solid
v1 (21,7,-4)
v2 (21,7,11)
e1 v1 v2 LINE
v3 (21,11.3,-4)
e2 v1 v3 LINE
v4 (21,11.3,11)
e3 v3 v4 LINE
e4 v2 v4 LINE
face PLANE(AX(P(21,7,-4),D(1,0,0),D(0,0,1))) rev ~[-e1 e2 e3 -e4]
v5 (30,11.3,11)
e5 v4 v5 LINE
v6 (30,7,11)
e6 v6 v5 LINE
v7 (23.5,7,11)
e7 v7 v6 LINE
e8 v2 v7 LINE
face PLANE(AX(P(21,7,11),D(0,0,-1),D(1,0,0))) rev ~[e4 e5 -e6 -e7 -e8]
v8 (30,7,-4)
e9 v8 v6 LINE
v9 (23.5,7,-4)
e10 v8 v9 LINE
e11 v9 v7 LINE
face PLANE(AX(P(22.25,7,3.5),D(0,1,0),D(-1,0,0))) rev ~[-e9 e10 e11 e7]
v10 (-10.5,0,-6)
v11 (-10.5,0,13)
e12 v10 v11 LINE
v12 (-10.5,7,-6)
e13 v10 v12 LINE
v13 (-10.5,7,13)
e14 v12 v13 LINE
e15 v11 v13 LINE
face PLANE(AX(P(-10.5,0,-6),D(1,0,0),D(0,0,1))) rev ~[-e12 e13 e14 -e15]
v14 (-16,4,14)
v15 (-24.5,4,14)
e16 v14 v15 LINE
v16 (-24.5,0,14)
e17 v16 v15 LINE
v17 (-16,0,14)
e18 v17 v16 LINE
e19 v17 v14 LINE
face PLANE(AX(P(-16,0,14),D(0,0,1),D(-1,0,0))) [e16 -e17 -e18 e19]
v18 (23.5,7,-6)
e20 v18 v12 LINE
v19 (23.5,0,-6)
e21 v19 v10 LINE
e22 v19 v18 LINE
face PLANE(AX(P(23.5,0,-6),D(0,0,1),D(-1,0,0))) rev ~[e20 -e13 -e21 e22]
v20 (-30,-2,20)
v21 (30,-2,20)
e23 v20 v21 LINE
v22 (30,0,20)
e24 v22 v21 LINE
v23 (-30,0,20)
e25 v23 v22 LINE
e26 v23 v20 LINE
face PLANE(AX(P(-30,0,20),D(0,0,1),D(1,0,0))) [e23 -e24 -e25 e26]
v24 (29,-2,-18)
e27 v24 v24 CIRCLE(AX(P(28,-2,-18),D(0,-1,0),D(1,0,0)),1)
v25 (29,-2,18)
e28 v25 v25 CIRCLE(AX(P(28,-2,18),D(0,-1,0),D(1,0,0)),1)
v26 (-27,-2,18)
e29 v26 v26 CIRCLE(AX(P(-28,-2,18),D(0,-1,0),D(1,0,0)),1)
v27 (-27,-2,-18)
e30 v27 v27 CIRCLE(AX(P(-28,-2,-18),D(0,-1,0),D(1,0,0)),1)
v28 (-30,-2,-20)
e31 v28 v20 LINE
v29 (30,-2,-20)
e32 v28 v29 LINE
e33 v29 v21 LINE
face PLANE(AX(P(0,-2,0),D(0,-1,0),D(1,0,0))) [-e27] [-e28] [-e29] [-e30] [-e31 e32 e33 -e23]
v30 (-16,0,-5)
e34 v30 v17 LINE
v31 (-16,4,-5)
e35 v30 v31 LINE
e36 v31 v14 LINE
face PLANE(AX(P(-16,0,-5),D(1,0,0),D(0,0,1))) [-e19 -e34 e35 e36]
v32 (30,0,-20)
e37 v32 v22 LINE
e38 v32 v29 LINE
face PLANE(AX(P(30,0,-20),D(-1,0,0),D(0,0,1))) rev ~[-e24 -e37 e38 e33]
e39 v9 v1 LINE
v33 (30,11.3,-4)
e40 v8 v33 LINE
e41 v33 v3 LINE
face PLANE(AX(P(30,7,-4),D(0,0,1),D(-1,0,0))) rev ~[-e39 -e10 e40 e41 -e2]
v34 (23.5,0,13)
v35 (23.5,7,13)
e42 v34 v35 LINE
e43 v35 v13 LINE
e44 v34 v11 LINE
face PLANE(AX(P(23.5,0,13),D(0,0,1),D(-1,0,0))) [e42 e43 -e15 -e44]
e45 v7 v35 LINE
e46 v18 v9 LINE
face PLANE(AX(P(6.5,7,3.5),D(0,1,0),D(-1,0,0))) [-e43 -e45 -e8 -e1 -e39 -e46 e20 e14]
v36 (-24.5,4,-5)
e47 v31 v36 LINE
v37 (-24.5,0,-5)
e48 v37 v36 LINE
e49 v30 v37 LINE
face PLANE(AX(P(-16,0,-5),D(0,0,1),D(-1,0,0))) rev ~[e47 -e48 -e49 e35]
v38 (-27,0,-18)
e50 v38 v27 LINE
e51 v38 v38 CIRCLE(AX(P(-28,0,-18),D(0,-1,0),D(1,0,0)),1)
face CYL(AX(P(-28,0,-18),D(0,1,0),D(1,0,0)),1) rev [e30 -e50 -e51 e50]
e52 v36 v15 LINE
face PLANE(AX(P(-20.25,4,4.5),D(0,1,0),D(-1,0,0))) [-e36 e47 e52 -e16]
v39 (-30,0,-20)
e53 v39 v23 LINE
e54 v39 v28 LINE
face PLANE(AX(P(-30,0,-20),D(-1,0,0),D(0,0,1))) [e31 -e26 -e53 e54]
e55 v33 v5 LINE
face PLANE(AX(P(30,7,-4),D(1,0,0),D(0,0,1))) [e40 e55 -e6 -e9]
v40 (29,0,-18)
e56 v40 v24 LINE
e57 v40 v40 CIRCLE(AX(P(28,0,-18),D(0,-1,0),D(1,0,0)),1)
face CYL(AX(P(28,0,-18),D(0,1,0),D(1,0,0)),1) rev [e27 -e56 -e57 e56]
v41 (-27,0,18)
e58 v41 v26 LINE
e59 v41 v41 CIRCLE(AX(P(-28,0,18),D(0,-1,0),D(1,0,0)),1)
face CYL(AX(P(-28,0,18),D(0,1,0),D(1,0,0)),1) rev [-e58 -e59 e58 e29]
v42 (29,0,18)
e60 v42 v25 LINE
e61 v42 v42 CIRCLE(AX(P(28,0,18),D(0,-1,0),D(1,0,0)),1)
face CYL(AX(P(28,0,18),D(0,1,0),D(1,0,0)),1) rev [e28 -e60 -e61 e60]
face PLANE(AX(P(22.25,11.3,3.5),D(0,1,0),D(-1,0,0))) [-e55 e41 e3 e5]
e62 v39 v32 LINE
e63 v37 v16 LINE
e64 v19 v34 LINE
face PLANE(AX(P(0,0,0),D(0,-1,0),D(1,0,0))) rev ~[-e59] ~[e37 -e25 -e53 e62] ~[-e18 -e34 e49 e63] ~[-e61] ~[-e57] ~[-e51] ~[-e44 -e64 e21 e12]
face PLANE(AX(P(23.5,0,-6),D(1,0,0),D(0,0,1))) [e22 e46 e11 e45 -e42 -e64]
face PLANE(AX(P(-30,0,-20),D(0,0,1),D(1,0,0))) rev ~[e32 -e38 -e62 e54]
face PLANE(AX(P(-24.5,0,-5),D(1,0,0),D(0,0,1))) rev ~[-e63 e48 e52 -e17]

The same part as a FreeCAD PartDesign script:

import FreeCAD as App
import Part
import Sketcher
from FreeCAD import Vector


def add_polygon(sketch, points):
    """Adds a closed chain of lines whose ends are joined by coincident constraints."""
    first, n = sketch.GeometryCount, len(points)
    for a, b in zip(points, points[1:] + points[:1]):
        sketch.addGeometry(Part.LineSegment(App.Vector(*a, 0), App.Vector(*b, 0)), False)
    for i in range(n):
        sketch.addConstraint(Sketcher.Constraint("Coincident", first + i, 2, first + (i + 1) % n, 1))

doc = App.newDocument("Part")
body = doc.addObject("PartDesign::Body", "Body")

sketch1 = body.newObject("Sketcher::SketchObject", "Sketch")
sketch1.AttachmentSupport = (doc.getObject("XZ_Plane"), [""])
sketch1.MapMode = "FlatFace"
add_polygon(sketch1, [(-30, 20), (-30, -20), (30, -20), (30, 20)])
sketch1.addGeometry(Part.Circle(Vector(-28, -18, 0), Vector(0, 0, 1), 1), False)
sketch1.addGeometry(Part.Circle(Vector(28, -18, 0), Vector(0, 0, 1), 1), False)
sketch1.addGeometry(Part.Circle(Vector(-28, 18, 0), Vector(0, 0, 1), 1), False)
sketch1.addGeometry(Part.Circle(Vector(28, 18, 0), Vector(0, 0, 1), 1), False)
sketch1.addConstraint([
    Sketcher.Constraint("Vertical", 0),
    Sketcher.Constraint("Horizontal", 1),
    Sketcher.Constraint("Vertical", 2),
    Sketcher.Constraint("Horizontal", 3),
    Sketcher.Constraint("Equal", 4, 5),
    Sketcher.Constraint("Equal", 5, 6),
    Sketcher.Constraint("Equal", 6, 7),
    Sketcher.Constraint("Symmetric", 5, 3, 6, 3, -1, 1),
    Sketcher.Constraint("Symmetric", 4, 3, 7, 3, -1, 1),
    Sketcher.Constraint("Symmetric", 0, 2, 2, 2, -1, 1),
    Sketcher.Constraint("Symmetric", 4, 3, 5, 3, -2),
    Sketcher.Constraint("Diameter", 4, 2.0),
    Sketcher.Constraint("DistanceX", 1, 1, 1, 2, 60.0),
    Sketcher.Constraint("DistanceY", 0, 2, 0, 1, 40.0),
    Sketcher.Constraint("DistanceX", 4, 3, -1, 1, 28.0),
    Sketcher.Constraint("DistanceY", 4, 3, -1, 1, 18.0),
])
pad1 = body.newObject("PartDesign::Pad", "Pad")
pad1.Profile = sketch1
pad1.Length = 2

sketch2 = body.newObject("Sketcher::SketchObject", "Sketch001")
sketch2.AttachmentSupport = (doc.getObject("XZ_Plane"), [""])
sketch2.MapMode = "FlatFace"
add_polygon(sketch2, [(-16, 14), (-16, -5), (-24, -5), (-24, 14)])
sketch2.addConstraint([
    Sketcher.Constraint("Vertical", 0),
    Sketcher.Constraint("Horizontal", 1),
    Sketcher.Constraint("Vertical", 2),
    Sketcher.Constraint("Horizontal", 3),
    Sketcher.Constraint("DistanceY", 0, 2, 0, 1, 19.0),
    Sketcher.Constraint("DistanceX", 1, 2, 1, 1, 8.5),
    Sketcher.Constraint("DistanceX", 0, 2, -1, 1, 16.0),
    Sketcher.Constraint("DistanceY", 0, 2, -1, 1, 5.0),
])
pad2 = body.newObject("PartDesign::Pad", "Pad001")
pad2.Profile = sketch2
pad2.Length = 4
pad2.Reversed = True

sketch3 = body.newObject("Sketcher::SketchObject", "Sketch002")
sketch3.AttachmentSupport = (doc.getObject("XZ_Plane"), [""])
sketch3.MapMode = "FlatFace"
add_polygon(sketch3, [(24, 13), (24, -6), (-10, -6), (-10, 13)])
sketch3.addConstraint([
    Sketcher.Constraint("Vertical", 0),
    Sketcher.Constraint("Horizontal", 1),
    Sketcher.Constraint("Vertical", 2),
    Sketcher.Constraint("Horizontal", 3),
    Sketcher.Constraint("DistanceX", 1, 2, 1, 1, 34.0),
    Sketcher.Constraint("DistanceY", 0, 2, 0, 1, 19.0),
    Sketcher.Constraint("DistanceY", 0, 2, -1, 1, 6.0),
    Sketcher.Constraint("DistanceX", -1, 1, 0, 2, 23.5),
])
pad3 = body.newObject("PartDesign::Pad", "Pad002")
pad3.Profile = sketch3
pad3.Length = 7
pad3.Reversed = True

sketch4 = body.newObject("Sketcher::SketchObject", "Sketch003")
sketch4.AttachmentSupport = (doc.getObject("XZ_Plane"), [""])
sketch4.MapMode = "FlatFace"
sketch4.AttachmentOffset = App.Placement(Vector(0, 0, -7), App.Rotation())
add_polygon(sketch4, [(21, -4), (21, 11), (30, 11), (30, -4)])
sketch4.addConstraint([
    Sketcher.Constraint("Vertical", 0),
    Sketcher.Constraint("Horizontal", 1),
    Sketcher.Constraint("Vertical", 2),
    Sketcher.Constraint("Horizontal", 3),
    Sketcher.Constraint("DistanceX", 1, 1, 1, 2, 9.0),
    Sketcher.Constraint("DistanceY", 0, 1, 0, 2, 15.0),
    Sketcher.Constraint("DistanceX", -1, 1, 0, 2, 21.0),
    Sketcher.Constraint("DistanceY", -1, 1, 0, 2, 11.0),
])
pad4 = body.newObject("PartDesign::Pad", "Pad003")
pad4.Profile = sketch4
pad4.Length = 4.3
pad4.Reversed = True

doc.recompute()
